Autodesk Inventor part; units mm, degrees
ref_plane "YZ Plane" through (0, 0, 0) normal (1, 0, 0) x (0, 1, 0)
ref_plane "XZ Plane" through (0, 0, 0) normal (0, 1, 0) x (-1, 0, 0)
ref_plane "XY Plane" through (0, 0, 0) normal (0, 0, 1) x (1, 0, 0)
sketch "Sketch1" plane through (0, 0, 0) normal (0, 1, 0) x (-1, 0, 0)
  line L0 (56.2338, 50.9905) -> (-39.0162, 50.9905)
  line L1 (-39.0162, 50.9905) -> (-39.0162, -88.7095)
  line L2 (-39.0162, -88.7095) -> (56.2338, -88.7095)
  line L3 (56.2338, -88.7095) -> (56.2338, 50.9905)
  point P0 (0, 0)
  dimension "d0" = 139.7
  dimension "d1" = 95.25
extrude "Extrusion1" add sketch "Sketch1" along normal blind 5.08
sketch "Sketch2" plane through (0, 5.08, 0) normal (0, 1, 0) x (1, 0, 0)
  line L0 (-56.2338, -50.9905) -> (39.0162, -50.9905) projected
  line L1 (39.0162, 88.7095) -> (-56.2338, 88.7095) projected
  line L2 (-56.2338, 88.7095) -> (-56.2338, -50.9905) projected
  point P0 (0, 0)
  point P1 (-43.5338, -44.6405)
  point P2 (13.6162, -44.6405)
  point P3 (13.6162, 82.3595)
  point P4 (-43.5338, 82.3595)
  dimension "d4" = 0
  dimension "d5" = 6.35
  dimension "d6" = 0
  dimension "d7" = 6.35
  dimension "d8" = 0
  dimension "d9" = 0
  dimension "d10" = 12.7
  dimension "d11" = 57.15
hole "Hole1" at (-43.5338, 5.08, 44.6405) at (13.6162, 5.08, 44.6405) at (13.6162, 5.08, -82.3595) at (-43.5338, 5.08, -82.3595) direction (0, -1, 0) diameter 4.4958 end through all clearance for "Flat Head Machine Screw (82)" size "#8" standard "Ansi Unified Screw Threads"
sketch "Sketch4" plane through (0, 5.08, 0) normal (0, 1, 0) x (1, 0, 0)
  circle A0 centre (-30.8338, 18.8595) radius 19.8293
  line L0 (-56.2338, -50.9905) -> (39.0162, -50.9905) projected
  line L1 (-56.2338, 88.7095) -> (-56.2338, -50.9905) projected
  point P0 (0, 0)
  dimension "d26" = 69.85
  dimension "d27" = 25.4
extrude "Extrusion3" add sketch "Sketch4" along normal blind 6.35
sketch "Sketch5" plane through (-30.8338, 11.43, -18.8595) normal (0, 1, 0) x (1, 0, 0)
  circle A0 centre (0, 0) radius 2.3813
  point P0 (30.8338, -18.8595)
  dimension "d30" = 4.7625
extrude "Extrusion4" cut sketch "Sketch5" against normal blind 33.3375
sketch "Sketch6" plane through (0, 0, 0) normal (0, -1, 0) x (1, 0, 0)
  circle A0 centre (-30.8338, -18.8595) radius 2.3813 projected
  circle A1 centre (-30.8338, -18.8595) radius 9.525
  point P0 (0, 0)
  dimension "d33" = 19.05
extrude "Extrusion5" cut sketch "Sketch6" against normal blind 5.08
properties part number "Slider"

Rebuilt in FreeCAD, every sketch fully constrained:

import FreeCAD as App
import Part
import Sketcher
from FreeCAD import Vector
Q = App.Units.Quantity

doc = App.newDocument("Part")
params = doc.addObject("Spreadsheet::Sheet", "Params")
for row, (alias, value) in enumerate([
    ("sketch1_height", "5.5 in"),
    ("sketch1_width", "3.75 in"),
    ("pad1_length", "0.2 in"),
    ("sketch2_diameter", "0.177 in"),
    ("hole_diameter", "0.177 in"),
    ("pad2_length", "0.25 in"),
    ("sketch4_diameter", "0.1875 in"),
    ("pocket1_length", "1.3125 in"),
    ("sketch5_diameter", "0.75 in"),
    ("sketch5_diameter2", "0.1875 in"),
    ("pocket2_length", "0.2 in"),
], start=1):
    params.set(f"A{row}", alias)
    params.set(f"B{row}", "=" + value)
    params.setAlias(f"B{row}", alias)

body = doc.addObject("PartDesign::Body", "Body")

sketch1 = body.newObject("Sketcher::SketchObject", "Sketch")
sketch1.AttachmentSupport = (doc.getObject("XZ_Plane"), [""])
sketch1.MapMode = "FlatFace"
sketch1.addGeometry(Part.LineSegment(Vector(-56, -89, 0), Vector(-56, 51, 0)), False)
sketch1.addGeometry(Part.LineSegment(Vector(-56, 51, 0), Vector(39, 51, 0)), False)
sketch1.addGeometry(Part.LineSegment(Vector(39, 51, 0), Vector(39, -89, 0)), False)
sketch1.addGeometry(Part.LineSegment(Vector(39, -89, 0), Vector(-56, -89, 0)), False)
sketch1.addConstraint(Sketcher.Constraint("Coincident", 0, 2, 1, 1))
sketch1.addConstraint(Sketcher.Constraint("Coincident", 1, 2, 2, 1))
sketch1.addConstraint(Sketcher.Constraint("Coincident", 2, 2, 3, 1))
sketch1.addConstraint(Sketcher.Constraint("Coincident", 3, 2, 0, 1))
sketch1.addConstraint(Sketcher.Constraint("Vertical", 0))
sketch1.addConstraint(Sketcher.Constraint("Horizontal", 1))
sketch1.addConstraint(Sketcher.Constraint("Vertical", 2))
sketch1.addConstraint(Sketcher.Constraint("Horizontal", 3))
sketch1.addConstraint(Sketcher.Constraint("DistanceY", 0, 1, 0, 2, Q("5.5 in")))
sketch1.addConstraint(Sketcher.Constraint("DistanceX", 1, 1, 1, 2, Q("3.75 in")))
sketch1.addConstraint(Sketcher.Constraint("DistanceY", -1, 1, 0, 2, Q("2.0075 in")))
sketch1.addConstraint(Sketcher.Constraint("DistanceX", 0, 2, -1, 1, Q("56.2338 mm")))
sketch1.setExpression("Constraints[8]", "Params.sketch1_height")
sketch1.setExpression("Constraints[9]", "Params.sketch1_width")
pad1 = body.newObject("PartDesign::Pad", "Pad")
pad1.Profile = sketch1
pad1.setExpression("Length", "Params.pad1_length")
pad1.Reversed = True

sketch2 = body.newObject("Sketcher::SketchObject", "Sketch001")
sketch2.AttachmentSupport = (doc.getObject("XZ_Plane"), [""])
sketch2.MapMode = "FlatFace"
sketch2.AttachmentOffset = App.Placement(Vector(0, 0, -0.2 * 25.4), App.Rotation())
sketch2.addGeometry(Part.Circle(Vector(-43.5, 44.6, 0), Vector(0, 0, 1), 2.2), False)
sketch2.addGeometry(Part.Circle(Vector(13.6, 44.6, 0), Vector(0, 0, 1), 2.2), False)
sketch2.addGeometry(Part.Circle(Vector(13.6, -82.4, 0), Vector(0, 0, 1), 2.2), False)
sketch2.addGeometry(Part.Circle(Vector(-43.5, -82.4, 0), Vector(0, 0, 1), 2.2), False)
sketch2.addConstraint(Sketcher.Constraint("Equal", 0, 1))
sketch2.addConstraint(Sketcher.Constraint("Equal", 1, 2))
sketch2.addConstraint(Sketcher.Constraint("Equal", 2, 3))
sketch2.addConstraint(Sketcher.Constraint("Horizontal", 0, 3, 1, 3))
sketch2.addConstraint(Sketcher.Constraint("Horizontal", 2, 3, 3, 3))
sketch2.addConstraint(Sketcher.Constraint("Vertical", 1, 3, 2, 3))
sketch2.addConstraint(Sketcher.Constraint("Vertical", 0, 3, 3, 3))
sketch2.addConstraint(Sketcher.Constraint("Diameter", 0, Q("0.177 in")))
sketch2.addConstraint(Sketcher.Constraint("DistanceY", 2, 3, 1, 3, Q("5 in")))
sketch2.addConstraint(Sketcher.Constraint("DistanceX", 0, 3, 1, 3, Q("2.25 in")))
sketch2.addConstraint(Sketcher.Constraint("DistanceY", -1, 1, 0, 3, Q("1.7575 in")))
sketch2.addConstraint(Sketcher.Constraint("DistanceX", 0, 3, -1, 1, Q("43.5338 mm")))
sketch2.setExpression("Constraints[7]", "Params.sketch2_diameter")
doc.recompute()
hole = body.newObject("PartDesign::Hole", "Hole")
hole.Profile = sketch2
hole.ThreadType = "None"
hole.setExpression("Diameter", "Params.hole_diameter")
hole.DepthType = "ThroughAll"
hole.Reversed = True

sketch3 = body.newObject("Sketcher::SketchObject", "Sketch002")
sketch3.AttachmentSupport = (doc.getObject("XZ_Plane"), [""])
sketch3.MapMode = "FlatFace"
sketch3.AttachmentOffset = App.Placement(Vector(0, 0, -0.2 * 25.4), App.Rotation())
sketch3.addGeometry(Part.Circle(Vector(-31, -19, 0), Vector(0, 0, 1), 20), False)
sketch3.addConstraint(Sketcher.Constraint("Diameter", 0, Q("39.6586 mm")))
sketch3.addConstraint(Sketcher.Constraint("DistanceY", 0, 3, -1, 1, Q("0.7425 in")))
sketch3.addConstraint(Sketcher.Constraint("DistanceX", 0, 3, -1, 1, Q("30.8338 mm")))
pad2 = body.newObject("PartDesign::Pad", "Pad001")
pad2.Profile = sketch3
pad2.setExpression("Length", "Params.pad2_length")
pad2.Reversed = True

sketch4 = body.newObject("Sketcher::SketchObject", "Sketch003")
sketch4.AttachmentSupport = (doc.getObject("XZ_Plane"), [""])
sketch4.MapMode = "FlatFace"
sketch4.AttachmentOffset = App.Placement(Vector(0, 0, -0.45 * 25.4), App.Rotation())
sketch4.addGeometry(Part.Circle(Vector(-30.8, -18.9, 0), Vector(0, 0, 1), 2.4), False)
sketch4.addConstraint(Sketcher.Constraint("Diameter", 0, Q("0.1875 in")))
sketch4.addConstraint(Sketcher.Constraint("DistanceY", 0, 3, -1, 1, Q("0.7425 in")))
sketch4.addConstraint(Sketcher.Constraint("DistanceX", 0, 3, -1, 1, Q("30.8338 mm")))
sketch4.setExpression("Constraints[0]", "Params.sketch4_diameter")
pocket1 = body.newObject("PartDesign::Pocket", "Pocket")
pocket1.Profile = sketch4
pocket1.setExpression("Length", "Params.pocket1_length")
pocket1.Reversed = True

sketch5 = body.newObject("Sketcher::SketchObject", "Sketch004")
sketch5.AttachmentSupport = (doc.getObject("XZ_Plane"), [""])
sketch5.MapMode = "FlatFace"
sketch5.addGeometry(Part.Circle(Vector(-30.8, -18.9, 0), Vector(0, 0, 1), 9.5), False)
sketch5.addGeometry(Part.Circle(Vector(-30.8, -18.9, 0), Vector(0, 0, 1), 2.4), False)
sketch5.addConstraint(Sketcher.Constraint("Coincident", 1, 3, 0, 3))
sketch5.addConstraint(Sketcher.Constraint("Diameter", 0, Q("0.75 in")))
sketch5.addConstraint(Sketcher.Constraint("Diameter", 1, Q("0.1875 in")))
sketch5.addConstraint(Sketcher.Constraint("DistanceY", 0, 3, -1, 1, Q("0.7425 in")))
sketch5.addConstraint(Sketcher.Constraint("DistanceX", 0, 3, -1, 1, Q("30.8338 mm")))
sketch5.setExpression("Constraints[1]", "Params.sketch5_diameter")
sketch5.setExpression("Constraints[2]", "Params.sketch5_diameter2")
pocket2 = body.newObject("PartDesign::Pocket", "Pocket001")
pocket2.Profile = sketch5
pocket2.setExpression("Length", "Params.pocket2_length")

doc.recompute()
